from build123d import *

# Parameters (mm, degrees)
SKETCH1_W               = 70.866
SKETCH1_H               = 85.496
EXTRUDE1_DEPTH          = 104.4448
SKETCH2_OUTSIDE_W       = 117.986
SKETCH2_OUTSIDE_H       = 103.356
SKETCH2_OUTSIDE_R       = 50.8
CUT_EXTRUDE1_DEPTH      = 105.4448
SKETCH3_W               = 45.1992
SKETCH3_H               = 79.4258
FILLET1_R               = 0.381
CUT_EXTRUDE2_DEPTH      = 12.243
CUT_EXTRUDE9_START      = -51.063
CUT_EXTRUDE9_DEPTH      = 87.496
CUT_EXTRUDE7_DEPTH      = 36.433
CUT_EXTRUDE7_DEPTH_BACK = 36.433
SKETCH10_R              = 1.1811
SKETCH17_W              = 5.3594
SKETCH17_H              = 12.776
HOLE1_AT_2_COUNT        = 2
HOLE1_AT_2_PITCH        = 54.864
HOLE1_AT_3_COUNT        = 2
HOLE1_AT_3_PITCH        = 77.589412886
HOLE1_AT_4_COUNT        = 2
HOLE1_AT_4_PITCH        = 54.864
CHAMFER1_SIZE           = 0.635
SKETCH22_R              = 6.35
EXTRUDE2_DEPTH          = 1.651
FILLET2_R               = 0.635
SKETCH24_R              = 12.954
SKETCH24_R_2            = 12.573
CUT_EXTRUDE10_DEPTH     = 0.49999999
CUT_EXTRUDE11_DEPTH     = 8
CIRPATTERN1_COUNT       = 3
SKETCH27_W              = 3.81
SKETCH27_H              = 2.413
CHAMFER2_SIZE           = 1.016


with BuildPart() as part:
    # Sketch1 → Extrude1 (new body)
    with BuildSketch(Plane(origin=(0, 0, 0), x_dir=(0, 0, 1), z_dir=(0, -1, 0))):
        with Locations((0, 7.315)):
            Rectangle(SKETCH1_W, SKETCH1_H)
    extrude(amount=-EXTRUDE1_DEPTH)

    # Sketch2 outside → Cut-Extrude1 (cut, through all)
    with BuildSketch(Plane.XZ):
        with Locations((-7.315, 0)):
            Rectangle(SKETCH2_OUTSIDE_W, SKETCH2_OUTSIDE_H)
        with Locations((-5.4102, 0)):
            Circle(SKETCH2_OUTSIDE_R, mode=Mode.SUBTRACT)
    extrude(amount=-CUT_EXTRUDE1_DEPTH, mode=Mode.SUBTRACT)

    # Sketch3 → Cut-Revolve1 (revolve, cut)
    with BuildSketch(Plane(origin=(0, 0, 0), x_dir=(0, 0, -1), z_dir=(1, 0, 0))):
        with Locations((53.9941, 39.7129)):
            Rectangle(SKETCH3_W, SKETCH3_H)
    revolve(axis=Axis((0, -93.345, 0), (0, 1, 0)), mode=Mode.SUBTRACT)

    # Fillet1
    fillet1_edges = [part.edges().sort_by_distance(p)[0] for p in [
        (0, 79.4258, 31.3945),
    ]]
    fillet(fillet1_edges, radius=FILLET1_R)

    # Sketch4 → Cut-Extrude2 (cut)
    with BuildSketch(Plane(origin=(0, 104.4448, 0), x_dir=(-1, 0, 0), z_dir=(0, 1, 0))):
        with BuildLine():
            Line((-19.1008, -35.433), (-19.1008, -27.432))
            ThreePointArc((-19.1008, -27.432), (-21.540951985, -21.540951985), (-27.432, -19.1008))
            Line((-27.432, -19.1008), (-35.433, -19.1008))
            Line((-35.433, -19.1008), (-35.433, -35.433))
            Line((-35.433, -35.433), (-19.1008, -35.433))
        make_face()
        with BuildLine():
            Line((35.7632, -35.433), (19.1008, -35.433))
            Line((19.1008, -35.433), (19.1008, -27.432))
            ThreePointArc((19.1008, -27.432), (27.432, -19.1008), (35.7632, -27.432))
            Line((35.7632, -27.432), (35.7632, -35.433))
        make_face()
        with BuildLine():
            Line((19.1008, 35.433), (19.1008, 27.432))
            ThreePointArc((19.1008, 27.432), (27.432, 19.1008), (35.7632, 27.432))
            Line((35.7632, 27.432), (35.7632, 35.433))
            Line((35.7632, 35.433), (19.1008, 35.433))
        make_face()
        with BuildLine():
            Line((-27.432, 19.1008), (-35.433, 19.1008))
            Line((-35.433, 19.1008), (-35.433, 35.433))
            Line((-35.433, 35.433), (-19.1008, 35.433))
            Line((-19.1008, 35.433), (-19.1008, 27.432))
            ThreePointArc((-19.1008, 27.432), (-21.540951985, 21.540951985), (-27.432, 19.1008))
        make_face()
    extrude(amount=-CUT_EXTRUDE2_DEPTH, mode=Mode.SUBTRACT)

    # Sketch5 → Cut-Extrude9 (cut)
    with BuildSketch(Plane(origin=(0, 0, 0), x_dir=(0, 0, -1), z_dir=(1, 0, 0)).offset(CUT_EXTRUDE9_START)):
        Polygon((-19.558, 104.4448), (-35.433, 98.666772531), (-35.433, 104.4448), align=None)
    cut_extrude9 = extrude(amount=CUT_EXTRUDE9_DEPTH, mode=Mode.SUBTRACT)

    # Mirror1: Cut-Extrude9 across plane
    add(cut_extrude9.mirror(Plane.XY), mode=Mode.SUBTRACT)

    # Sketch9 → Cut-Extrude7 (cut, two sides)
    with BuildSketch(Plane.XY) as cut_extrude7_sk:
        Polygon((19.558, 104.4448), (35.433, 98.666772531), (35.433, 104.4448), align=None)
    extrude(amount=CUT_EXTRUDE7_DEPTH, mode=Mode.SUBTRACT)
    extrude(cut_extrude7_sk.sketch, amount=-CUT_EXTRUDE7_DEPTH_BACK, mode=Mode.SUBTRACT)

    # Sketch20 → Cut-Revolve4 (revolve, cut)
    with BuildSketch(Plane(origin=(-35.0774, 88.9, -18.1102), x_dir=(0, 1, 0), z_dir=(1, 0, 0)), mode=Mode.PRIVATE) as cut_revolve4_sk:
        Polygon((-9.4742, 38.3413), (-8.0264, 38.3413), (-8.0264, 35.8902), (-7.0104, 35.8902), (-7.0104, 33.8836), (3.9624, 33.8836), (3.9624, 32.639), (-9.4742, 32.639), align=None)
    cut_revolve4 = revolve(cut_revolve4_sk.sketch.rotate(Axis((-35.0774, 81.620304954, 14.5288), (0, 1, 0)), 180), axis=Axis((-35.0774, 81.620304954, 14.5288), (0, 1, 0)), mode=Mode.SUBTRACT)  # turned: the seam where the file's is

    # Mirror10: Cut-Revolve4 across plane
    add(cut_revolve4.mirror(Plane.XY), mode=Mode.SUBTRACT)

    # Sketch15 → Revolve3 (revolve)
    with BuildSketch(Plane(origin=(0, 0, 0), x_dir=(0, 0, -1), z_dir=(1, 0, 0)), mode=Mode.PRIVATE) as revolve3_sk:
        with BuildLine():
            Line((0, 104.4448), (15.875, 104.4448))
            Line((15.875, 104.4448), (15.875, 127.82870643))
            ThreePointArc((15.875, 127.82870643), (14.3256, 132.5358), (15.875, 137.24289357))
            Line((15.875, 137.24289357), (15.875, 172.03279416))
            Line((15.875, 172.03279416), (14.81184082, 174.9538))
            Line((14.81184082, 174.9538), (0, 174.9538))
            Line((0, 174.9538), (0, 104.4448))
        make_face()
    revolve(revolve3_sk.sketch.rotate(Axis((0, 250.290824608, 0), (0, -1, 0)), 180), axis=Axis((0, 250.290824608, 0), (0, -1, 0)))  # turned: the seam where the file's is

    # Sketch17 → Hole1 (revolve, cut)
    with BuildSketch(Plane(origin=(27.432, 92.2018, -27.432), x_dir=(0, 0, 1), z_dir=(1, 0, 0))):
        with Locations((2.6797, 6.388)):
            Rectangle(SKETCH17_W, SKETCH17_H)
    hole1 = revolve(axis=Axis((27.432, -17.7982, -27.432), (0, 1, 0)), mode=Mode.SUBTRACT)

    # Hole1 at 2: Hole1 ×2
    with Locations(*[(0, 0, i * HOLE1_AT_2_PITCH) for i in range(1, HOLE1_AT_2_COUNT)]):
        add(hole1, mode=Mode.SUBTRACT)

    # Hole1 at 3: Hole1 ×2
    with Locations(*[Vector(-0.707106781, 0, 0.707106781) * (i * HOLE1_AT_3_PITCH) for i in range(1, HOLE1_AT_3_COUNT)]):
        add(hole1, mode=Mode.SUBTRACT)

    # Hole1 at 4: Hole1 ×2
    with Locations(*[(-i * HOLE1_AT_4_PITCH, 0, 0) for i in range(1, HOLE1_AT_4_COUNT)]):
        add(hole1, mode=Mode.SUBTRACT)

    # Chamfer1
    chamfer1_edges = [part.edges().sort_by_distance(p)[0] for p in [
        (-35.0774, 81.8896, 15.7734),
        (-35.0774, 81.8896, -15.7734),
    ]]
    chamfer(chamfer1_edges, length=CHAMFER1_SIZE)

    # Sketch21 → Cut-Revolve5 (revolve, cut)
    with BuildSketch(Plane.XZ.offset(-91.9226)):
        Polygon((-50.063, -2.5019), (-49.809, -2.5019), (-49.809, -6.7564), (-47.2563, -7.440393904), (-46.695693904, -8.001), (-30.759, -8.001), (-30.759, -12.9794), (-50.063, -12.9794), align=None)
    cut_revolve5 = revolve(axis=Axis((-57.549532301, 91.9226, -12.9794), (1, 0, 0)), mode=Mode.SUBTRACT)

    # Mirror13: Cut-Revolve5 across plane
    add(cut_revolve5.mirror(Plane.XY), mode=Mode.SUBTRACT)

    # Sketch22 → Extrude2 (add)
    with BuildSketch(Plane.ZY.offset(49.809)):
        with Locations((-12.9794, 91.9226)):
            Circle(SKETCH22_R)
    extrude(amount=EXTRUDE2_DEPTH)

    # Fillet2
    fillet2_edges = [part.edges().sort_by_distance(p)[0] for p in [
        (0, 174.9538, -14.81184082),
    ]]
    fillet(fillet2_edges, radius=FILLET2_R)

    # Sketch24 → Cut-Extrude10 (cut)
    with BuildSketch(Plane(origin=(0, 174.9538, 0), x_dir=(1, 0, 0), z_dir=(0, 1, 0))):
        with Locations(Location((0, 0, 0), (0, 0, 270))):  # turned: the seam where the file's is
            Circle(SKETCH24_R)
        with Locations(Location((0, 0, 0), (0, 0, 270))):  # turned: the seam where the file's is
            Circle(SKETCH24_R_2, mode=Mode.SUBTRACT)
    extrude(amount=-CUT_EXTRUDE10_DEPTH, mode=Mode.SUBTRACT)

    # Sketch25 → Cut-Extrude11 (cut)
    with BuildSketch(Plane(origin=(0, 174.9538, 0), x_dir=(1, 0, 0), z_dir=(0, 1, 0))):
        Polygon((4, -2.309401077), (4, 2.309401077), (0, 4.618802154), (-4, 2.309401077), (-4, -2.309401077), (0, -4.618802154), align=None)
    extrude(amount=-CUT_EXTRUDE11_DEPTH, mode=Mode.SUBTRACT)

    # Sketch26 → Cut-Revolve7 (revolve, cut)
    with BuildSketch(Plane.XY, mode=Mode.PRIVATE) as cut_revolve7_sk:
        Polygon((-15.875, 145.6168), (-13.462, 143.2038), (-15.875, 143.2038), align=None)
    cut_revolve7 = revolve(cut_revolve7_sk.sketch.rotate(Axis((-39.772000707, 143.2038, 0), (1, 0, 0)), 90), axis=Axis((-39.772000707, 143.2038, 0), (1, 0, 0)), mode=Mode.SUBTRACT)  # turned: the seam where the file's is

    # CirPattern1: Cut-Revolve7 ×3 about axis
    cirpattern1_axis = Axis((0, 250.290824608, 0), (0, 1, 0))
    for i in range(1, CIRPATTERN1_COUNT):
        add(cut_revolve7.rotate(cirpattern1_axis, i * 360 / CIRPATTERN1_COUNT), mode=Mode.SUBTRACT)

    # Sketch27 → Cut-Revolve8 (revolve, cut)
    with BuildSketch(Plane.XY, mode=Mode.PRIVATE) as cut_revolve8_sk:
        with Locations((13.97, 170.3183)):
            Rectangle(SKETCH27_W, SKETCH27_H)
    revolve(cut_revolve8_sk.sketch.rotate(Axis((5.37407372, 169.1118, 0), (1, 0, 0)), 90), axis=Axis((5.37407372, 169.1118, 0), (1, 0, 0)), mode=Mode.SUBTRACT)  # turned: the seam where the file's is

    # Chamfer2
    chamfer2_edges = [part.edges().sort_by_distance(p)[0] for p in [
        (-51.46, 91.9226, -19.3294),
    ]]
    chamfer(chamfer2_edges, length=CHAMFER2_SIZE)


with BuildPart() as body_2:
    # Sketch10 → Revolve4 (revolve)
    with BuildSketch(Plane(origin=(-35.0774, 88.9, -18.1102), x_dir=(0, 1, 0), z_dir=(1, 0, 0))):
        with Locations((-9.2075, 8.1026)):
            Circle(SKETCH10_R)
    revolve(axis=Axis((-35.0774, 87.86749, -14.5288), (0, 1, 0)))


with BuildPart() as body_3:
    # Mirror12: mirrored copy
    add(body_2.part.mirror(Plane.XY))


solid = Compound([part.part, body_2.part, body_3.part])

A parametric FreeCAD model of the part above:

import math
import FreeCAD as App
import Part
import Sketcher

V = App.Vector
Q = App.Units.Quantity


def edges_at(feature, points):
    """Names of the edges that pass closest to the given points."""
    edges = feature.Shape.Edges
    near = lambda p: min(range(len(edges)), key=lambda i: edges[i].distToShape(Part.Vertex(*p))[0])
    return sorted({f"Edge{near(p) + 1}" for p in points})

doc = App.newDocument("Part")
body = doc.addObject("PartDesign::Body", "Body")

# Sketch on XZ plane
sketch1 = body.newObject("Sketcher::SketchObject", "Sketch")
sketch1.AttachmentSupport = (doc.getObject("XZ_Plane"), [""])
sketch1.MapMode = "FlatFace"
sketch1.addGeometry(Part.LineSegment(V(-50, -35, 0), V(35, -35, 0)), False)
sketch1.addGeometry(Part.LineSegment(V(35, -35, 0), V(35, 35, 0)), False)
sketch1.addGeometry(Part.LineSegment(V(35, 35, 0), V(-50, 35, 0)), False)
sketch1.addGeometry(Part.LineSegment(V(-50, 35, 0), V(-50, -35, 0)), False)
sketch1.addConstraint(Sketcher.Constraint("Coincident", 0, 2, 1, 1))
sketch1.addConstraint(Sketcher.Constraint("Coincident", 1, 2, 2, 1))
sketch1.addConstraint(Sketcher.Constraint("Coincident", 2, 2, 3, 1))
sketch1.addConstraint(Sketcher.Constraint("Coincident", 3, 2, 0, 1))
sketch1.addConstraint(Sketcher.Constraint("Horizontal", 0))
sketch1.addConstraint(Sketcher.Constraint("Vertical", 1))
sketch1.addConstraint(Sketcher.Constraint("Horizontal", 2))
sketch1.addConstraint(Sketcher.Constraint("Vertical", 3))
sketch1.addConstraint(Sketcher.Constraint("DistanceY", 1, 1, 1, 2, Q("2.79 in")))
sketch1.addConstraint(Sketcher.Constraint("DistanceX", -1, 1, 0, 2, Q("1.395 in")))
sketch1.addConstraint(Sketcher.Constraint("DistanceY", 0, 2, -1, 1, Q("1.395 in")))
sketch1.addConstraint(Sketcher.Constraint("DistanceX", 0, 1, 0, 2, Q("85.496 mm")))
pad1 = body.newObject("PartDesign::Pad", "Pad")
pad1.Profile = sketch1
pad1.Length = Q("4.112 in")
pad1.Reversed = True

# Sketch on XZ plane
sketch2 = body.newObject("Sketcher::SketchObject", "Sketch001")
sketch2.AttachmentSupport = (doc.getObject("XZ_Plane"), [""])
sketch2.MapMode = "FlatFace"
sketch2.addGeometry(Part.LineSegment(V(-66, 52, 0), V(-66, -52, 0)), False)
sketch2.addGeometry(Part.LineSegment(V(-66, -52, 0), V(52, -52, 0)), False)
sketch2.addGeometry(Part.LineSegment(V(52, -52, 0), V(52, 52, 0)), False)
sketch2.addGeometry(Part.LineSegment(V(52, 52, 0), V(-66, 52, 0)), False)
sketch2.addGeometry(Part.Circle(V(-5, 0, 0), V(0, 0, 1), 51), False)
sketch2.addConstraint(Sketcher.Constraint("Coincident", 0, 2, 1, 1))
sketch2.addConstraint(Sketcher.Constraint("Coincident", 1, 2, 2, 1))
sketch2.addConstraint(Sketcher.Constraint("Coincident", 2, 2, 3, 1))
sketch2.addConstraint(Sketcher.Constraint("Coincident", 3, 2, 0, 1))
sketch2.addConstraint(Sketcher.Constraint("Vertical", 0))
sketch2.addConstraint(Sketcher.Constraint("Horizontal", 1))
sketch2.addConstraint(Sketcher.Constraint("Vertical", 2))
sketch2.addConstraint(Sketcher.Constraint("Horizontal", 3))
sketch2.addConstraint(Sketcher.Constraint("PointOnObject", 4, 3, -1))
sketch2.addConstraint(Sketcher.Constraint("Diameter", 4, Q("4 in")))
sketch2.addConstraint(Sketcher.Constraint("DistanceX", 4, 3, -1, 1, Q("0.213 in")))
sketch2.addConstraint(Sketcher.Constraint("DistanceX", 1, 1, 1, 2, Q("117.986 mm")))
sketch2.addConstraint(Sketcher.Constraint("DistanceY", 0, 2, 0, 1, Q("103.356 mm")))
sketch2.addConstraint(Sketcher.Constraint("DistanceX", 0, 2, -1, 1, Q("66.308 mm")))
sketch2.addConstraint(Sketcher.Constraint("DistanceY", 0, 2, -1, 1, Q("51.678 mm")))
pocket1 = body.newObject("PartDesign::Pocket", "Pocket")
pocket1.Profile = sketch2
pocket1.Type = "ThroughAll"

# Sketch on YZ plane
sketch3 = body.newObject("Sketcher::SketchObject", "Sketch002")
sketch3.AttachmentSupport = (doc.getObject("YZ_Plane"), [""])
sketch3.MapMode = "FlatFace"
sketch3.addGeometry(Part.LineSegment(V(79, -31, 0), V(0, -31, 0)), False)
sketch3.addGeometry(Part.LineSegment(V(0, -31, 0), V(0, -77, 0)), False)
sketch3.addGeometry(Part.LineSegment(V(0, -77, 0), V(79, -77, 0)), False)
sketch3.addGeometry(Part.LineSegment(V(79, -77, 0), V(79, -31, 0)), False)
sketch3.addConstraint(Sketcher.Constraint("Coincident", 0, 2, 1, 1))
sketch3.addConstraint(Sketcher.Constraint("Coincident", 1, 2, 2, 1))
sketch3.addConstraint(Sketcher.Constraint("Coincident", 2, 2, 3, 1))
sketch3.addConstraint(Sketcher.Constraint("Coincident", 3, 2, 0, 1))
sketch3.addConstraint(Sketcher.Constraint("Horizontal", 0))
sketch3.addConstraint(Sketcher.Constraint("Vertical", 1))
sketch3.addConstraint(Sketcher.Constraint("Horizontal", 2))
sketch3.addConstraint(Sketcher.Constraint("Vertical", 3))
sketch3.addConstraint(Sketcher.Constraint("PointOnObject", 0, 2, -2))
sketch3.addConstraint(Sketcher.Constraint("DistanceX", 0, 2, 0, 1, Q("3.127 in")))
sketch3.addConstraint(Sketcher.Constraint("DistanceY", 1, 2, 1, 1, Q("45.1992 mm")))
sketch3.addConstraint(Sketcher.Constraint("DistanceY", 1, 2, -1, 1, Q("3.0155 in")))
groove = body.newObject("PartDesign::Groove", "Groove")
groove.Profile = sketch3
groove.ReferenceAxis = (sketch3, ["H_Axis"])
groove.Angle = 360
doc.recompute()

fillet = body.newObject("PartDesign::Fillet", "Fillet")
fillet.Base = (groove, edges_at(groove, [(0, 79.426, 31.395)]))
fillet.Radius = Q("0.015 in")

# Sketch on XZ plane
sketch4 = body.newObject("Sketcher::SketchObject", "Sketch003")
sketch4.AttachmentSupport = (doc.getObject("XZ_Plane"), [""])
sketch4.MapMode = "FlatFace"
sketch4.AttachmentOffset = App.Placement(V(0, 0, -4.112 * 25.4), App.Rotation())
sketch4.addGeometry(Part.LineSegment(V(19, -35, 0), V(19, -27, 0)), False)
sketch4.addGeometry(Part.ArcOfCircle(Part.Circle(V(27, -27, 0), V(0, 0, 1), 8), math.radians(90), math.radians(180)), False)
sketch4.addGeometry(Part.LineSegment(V(27, -19, 0), V(35, -19, 0)), False)
sketch4.addGeometry(Part.LineSegment(V(35, -19, 0), V(35, -35, 0)), False)
sketch4.addGeometry(Part.LineSegment(V(35, -35, 0), V(19, -35, 0)), False)
sketch4.addGeometry(Part.LineSegment(V(-19, -35, 0), V(-36, -35, 0)), False)
sketch4.addGeometry(Part.LineSegment(V(-36, -35, 0), V(-36, -27, 0)), False)
sketch4.addGeometry(Part.ArcOfCircle(Part.Circle(V(-27, -27, 0), V(0, 0, 1), 8), math.radians(0), math.radians(180)), False)
sketch4.addGeometry(Part.LineSegment(V(-19, -27, 0), V(-19, -35, 0)), False)
sketch4.addGeometry(Part.LineSegment(V(-19, 35, 0), V(-19, 27, 0)), False)
sketch4.addGeometry(Part.ArcOfCircle(Part.Circle(V(-27, 27, 0), V(0, 0, 1), 8), math.radians(180), math.radians(360)), False)
sketch4.addGeometry(Part.LineSegment(V(-36, 27, 0), V(-36, 35, 0)), False)
sketch4.addGeometry(Part.LineSegment(V(-36, 35, 0), V(-19, 35, 0)), False)
sketch4.addGeometry(Part.LineSegment(V(35, 19, 0), V(27, 19, 0)), False)
sketch4.addGeometry(Part.ArcOfCircle(Part.Circle(V(27, 27, 0), V(0, 0, 1), 8), math.radians(-180), math.radians(-90)), False)
sketch4.addGeometry(Part.LineSegment(V(19, 27, 0), V(19, 35, 0)), False)
sketch4.addGeometry(Part.LineSegment(V(19, 35, 0), V(35, 35, 0)), False)
sketch4.addGeometry(Part.LineSegment(V(35, 35, 0), V(35, 19, 0)), False)
sketch4.addConstraint(Sketcher.Constraint("Tangent", 0, 2, 1, 2))
sketch4.addConstraint(Sketcher.Constraint("Tangent", 1, 1, 2, 1))
sketch4.addConstraint(Sketcher.Constraint("Coincident", 2, 2, 3, 1))
sketch4.addConstraint(Sketcher.Constraint("Coincident", 3, 2, 4, 1))
sketch4.addConstraint(Sketcher.Constraint("Coincident", 4, 2, 0, 1))
sketch4.addConstraint(Sketcher.Constraint("Coincident", 5, 2, 6, 1))
sketch4.addConstraint(Sketcher.Constraint("Tangent", 6, 2, 7, 2))
sketch4.addConstraint(Sketcher.Constraint("Tangent", 7, 1, 8, 1))
sketch4.addConstraint(Sketcher.Constraint("Coincident", 8, 2, 5, 1))
sketch4.addConstraint(Sketcher.Constraint("Tangent", 9, 2, 10, 2))
sketch4.addConstraint(Sketcher.Constraint("Tangent", 10, 1, 11, 1))
sketch4.addConstraint(Sketcher.Constraint("Coincident", 11, 2, 12, 1))
sketch4.addConstraint(Sketcher.Constraint("Coincident", 12, 2, 9, 1))
sketch4.addConstraint(Sketcher.Constraint("Tangent", 13, 2, 14, 2))
sketch4.addConstraint(Sketcher.Constraint("Tangent", 14, 1, 15, 1))
sketch4.addConstraint(Sketcher.Constraint("Coincident", 15, 2, 16, 1))
sketch4.addConstraint(Sketcher.Constraint("Coincident", 16, 2, 17, 1))
sketch4.addConstraint(Sketcher.Constraint("Coincident", 17, 2, 13, 1))
sketch4.addConstraint(Sketcher.Constraint("Vertical", 0))
sketch4.addConstraint(Sketcher.Constraint("Horizontal", 2))
sketch4.addConstraint(Sketcher.Constraint("Vertical", 3))
sketch4.addConstraint(Sketcher.Constraint("Horizontal", 4))
sketch4.addConstraint(Sketcher.Constraint("Horizontal", 5))
sketch4.addConstraint(Sketcher.Constraint("Vertical", 6))
sketch4.addConstraint(Sketcher.Constraint("Vertical", 8))
sketch4.addConstraint(Sketcher.Constraint("Vertical", 9))
sketch4.addConstraint(Sketcher.Constraint("Vertical", 11))
sketch4.addConstraint(Sketcher.Constraint("Horizontal", 12))
sketch4.addConstraint(Sketcher.Constraint("Horizontal", 13))
sketch4.addConstraint(Sketcher.Constraint("Vertical", 15))
sketch4.addConstraint(Sketcher.Constraint("Horizontal", 16))
sketch4.addConstraint(Sketcher.Constraint("Vertical", 17))
sketch4.addConstraint(Sketcher.Constraint("Equal", 1, 7))
sketch4.addConstraint(Sketcher.Constraint("Equal", 7, 10))
sketch4.addConstraint(Sketcher.Constraint("Equal", 10, 14))
sketch4.addConstraint(Sketcher.Constraint("Symmetric", 1, 3, 10, 3, -1, 1))
sketch4.addConstraint(Sketcher.Constraint("Symmetric", 7, 3, 14, 3, -1, 1))
sketch4.addConstraint(Sketcher.Constraint("Symmetric", 1, 3, 7, 3, -2))
sketch4.addConstraint(Sketcher.Constraint("Symmetric", 3, 2, 16, 2, -1))
sketch4.addConstraint(Sketcher.Constraint("Horizontal", 4, 2, 5, 2))
sketch4.addConstraint(Sketcher.Constraint("Horizontal", 12, 2, 15, 2))
sketch4.addConstraint(Sketcher.Constraint("Equal", 13, 0))
sketch4.addConstraint(Sketcher.Constraint("Radius", 1, Q("0.328 in")))
sketch4.addConstraint(Sketcher.Constraint("DistanceX", 2, 1, 2, 2, Q("0.315 in")))
sketch4.addConstraint(Sketcher.Constraint("DistanceX", -1, 1, 1, 3, Q("1.08 in")))
sketch4.addConstraint(Sketcher.Constraint("DistanceY", 1, 3, -1, 1, Q("1.08 in")))
pocket2 = body.newObject("PartDesign::Pocket", "Pocket001")
pocket2.Profile = sketch4
pocket2.Length = 12.243
pocket2.Reversed = True

# Sketch on YZ plane
sketch5 = body.newObject("Sketcher::SketchObject", "Sketch004")
sketch5.AttachmentSupport = (doc.getObject("YZ_Plane"), [""])
sketch5.MapMode = "FlatFace"
sketch5.AttachmentOffset = App.Placement(V(0, 0, -51.063), App.Rotation())
sketch5.addGeometry(Part.LineSegment(V(99, 35, 0), V(104, 20, 0)), False)
sketch5.addGeometry(Part.LineSegment(V(104, 20, 0), V(104, 35, 0)), False)
sketch5.addGeometry(Part.LineSegment(V(104, 35, 0), V(99, 35, 0)), False)
sketch5.addConstraint(Sketcher.Constraint("Coincident", 0, 2, 1, 1))
sketch5.addConstraint(Sketcher.Constraint("Coincident", 1, 2, 2, 1))
sketch5.addConstraint(Sketcher.Constraint("Coincident", 2, 2, 0, 1))
sketch5.addConstraint(Sketcher.Constraint("Vertical", 1))
sketch5.addConstraint(Sketcher.Constraint("Horizontal", 2))
sketch5.addConstraint(Sketcher.Constraint("Angle", 0, Q("-70 deg")))
sketch5.addConstraint(Sketcher.Constraint("DistanceY", 1, 1, 1, 2, Q("0.625 in")))
sketch5.addConstraint(Sketcher.Constraint("DistanceY", -1, 1, 0, 2, Q("0.77 in")))
sketch5.addConstraint(Sketcher.Constraint("DistanceX", -1, 1, 0, 2, Q("4.112 in")))
pocket3 = body.newObject("PartDesign::Pocket", "Pocket002")
pocket3.Profile = sketch5
pocket3.Length = 87.496
pocket3.Reversed = True
doc.recompute()

mirrored = body.newObject("PartDesign::Mirrored", "Mirrored")
mirrored.Originals = [pocket3]
mirrored.MirrorPlane = (doc.getObject("XY_Plane"), [""])
body.Tip = mirrored

# Sketch on XY plane
sketch6 = body.newObject("Sketcher::SketchObject", "Sketch005")
sketch6.AttachmentSupport = (doc.getObject("XY_Plane"), [""])
sketch6.MapMode = "FlatFace"
sketch6.addGeometry(Part.LineSegment(V(20, 104, 0), V(35, 99, 0)), False)
sketch6.addGeometry(Part.LineSegment(V(35, 99, 0), V(35, 104, 0)), False)
sketch6.addGeometry(Part.LineSegment(V(35, 104, 0), V(20, 104, 0)), False)
sketch6.addConstraint(Sketcher.Constraint("Coincident", 0, 2, 1, 1))
sketch6.addConstraint(Sketcher.Constraint("Coincident", 1, 2, 2, 1))
sketch6.addConstraint(Sketcher.Constraint("Coincident", 2, 2, 0, 1))
sketch6.addConstraint(Sketcher.Constraint("Vertical", 1))
sketch6.addConstraint(Sketcher.Constraint("Horizontal", 2))
sketch6.addConstraint(Sketcher.Constraint("Angle", 0, Q("-20 deg")))
sketch6.addConstraint(Sketcher.Constraint("DistanceX", 2, 2, 2, 1, Q("0.625 in")))
sketch6.addConstraint(Sketcher.Constraint("DistanceX", -1, 1, 2, 2, Q("0.77 in")))
sketch6.addConstraint(Sketcher.Constraint("DistanceY", -1, 1, 1, 2, Q("4.112 in")))
pocket4 = body.newObject("PartDesign::Pocket", "Pocket003")
pocket4.Profile = sketch6
pocket4.Type = "ThroughAll"
pocket4.Midplane = True

# Sketch on YZ plane
sketch7 = body.newObject("Sketcher::SketchObject", "Sketch006")
sketch7.AttachmentSupport = (doc.getObject("YZ_Plane"), [""])
sketch7.MapMode = "FlatFace"
sketch7.AttachmentOffset = App.Placement(V(0, 0, -1.381 * 25.4), App.Rotation())
sketch7.addGeometry(Part.LineSegment(V(80.9, 20.2, 0), V(79.4, 20.2, 0)), False)
sketch7.addGeometry(Part.LineSegment(V(79.4, 20.2, 0), V(79.4, 14.5, 0)), False)
sketch7.addGeometry(Part.LineSegment(V(79.4, 14.5, 0), V(92.9, 14.5, 0)), False)
sketch7.addGeometry(Part.LineSegment(V(92.9, 14.5, 0), V(92.9, 15.8, 0)), False)
sketch7.addGeometry(Part.LineSegment(V(92.9, 15.8, 0), V(81.9, 15.8, 0)), False)
sketch7.addGeometry(Part.LineSegment(V(81.9, 15.8, 0), V(81.9, 17.8, 0)), False)
sketch7.addGeometry(Part.LineSegment(V(81.9, 17.8, 0), V(80.9, 17.8, 0)), False)
sketch7.addGeometry(Part.LineSegment(V(80.9, 17.8, 0), V(80.9, 20.2, 0)), False)
sketch7.addGeometry(Part.LineSegment(V(79.4, 14.5, 0), V(92.9, 14.5, 0)), True)  # axis
sketch7.addConstraint(Sketcher.Constraint("Coincident", 0, 2, 1, 1))
sketch7.addConstraint(Sketcher.Constraint("Coincident", 1, 2, 2, 1))
sketch7.addConstraint(Sketcher.Constraint("Coincident", 2, 2, 3, 1))
sketch7.addConstraint(Sketcher.Constraint("Coincident", 3, 2, 4, 1))
sketch7.addConstraint(Sketcher.Constraint("Coincident", 4, 2, 5, 1))
sketch7.addConstraint(Sketcher.Constraint("Coincident", 5, 2, 6, 1))
sketch7.addConstraint(Sketcher.Constraint("Coincident", 6, 2, 7, 1))
sketch7.addConstraint(Sketcher.Constraint("Coincident", 7, 2, 0, 1))
sketch7.addConstraint(Sketcher.Constraint("Horizontal", 0))
sketch7.addConstraint(Sketcher.Constraint("Vertical", 1))
sketch7.addConstraint(Sketcher.Constraint("Horizontal", 2))
sketch7.addConstraint(Sketcher.Constraint("Vertical", 3))
sketch7.addConstraint(Sketcher.Constraint("Horizontal", 4))
sketch7.addConstraint(Sketcher.Constraint("Vertical", 5))
sketch7.addConstraint(Sketcher.Constraint("Horizontal", 6))
sketch7.addConstraint(Sketcher.Constraint("Vertical", 7))
sketch7.addConstraint(Sketcher.Constraint("Horizontal", 8))
sketch7.addConstraint(Sketcher.Constraint("Coincident", 8, 1, 1, 2))
sketch7.addConstraint(Sketcher.Constraint("Vertical", 3, 2, 8, 2))
sketch7.addConstraint(Sketcher.Constraint("DistanceX", 6, 2, 6, 1, Q("0.04 in")))
sketch7.addConstraint(Sketcher.Constraint("DistanceY", -1, 1, 5, 2, Q("0.7 in")))
sketch7.addConstraint(Sketcher.Constraint("DistanceX", 0, 2, 0, 1, Q("0.057 in")))
sketch7.addConstraint(Sketcher.Constraint("DistanceX", 2, 1, 2, 2, Q("0.529 in")))
sketch7.addConstraint(Sketcher.Constraint("DistanceY", 3, 1, 3, 2, Q("0.049 in")))
sketch7.addConstraint(Sketcher.Constraint("DistanceY", 5, 1, 5, 2, Q("0.079 in")))
sketch7.addConstraint(Sketcher.Constraint("DistanceY", 1, 2, 1, 1, Q("0.2245 in")))
sketch7.addConstraint(Sketcher.Constraint("DistanceX", -1, 1, 0, 2, Q("3.127 in")))
groove2 = body.newObject("PartDesign::Groove", "Groove001")
groove2.Profile = sketch7
groove2.ReferenceAxis = (sketch7, ["Axis0"])
groove2.Angle = 360
doc.recompute()

mirrored2 = body.newObject("PartDesign::Mirrored", "Mirrored001")
mirrored2.Originals = [groove2]
mirrored2.MirrorPlane = (doc.getObject("XY_Plane"), [""])
body.Tip = mirrored2

# Sketch on YZ plane
sketch8 = body.newObject("Sketcher::SketchObject", "Sketch007")
sketch8.AttachmentSupport = (doc.getObject("YZ_Plane"), [""])
sketch8.MapMode = "FlatFace"
sketch8.addGeometry(Part.LineSegment(V(104.4, 0, 0), V(104.4, -15.9, 0)), False)
sketch8.addGeometry(Part.LineSegment(V(104.4, -15.9, 0), V(127.8, -15.9, 0)), False)
sketch8.addGeometry(Part.ArcOfCircle(Part.Circle(V(132.5, -22.3, 0), V(0, 0, 1), 7.9), math.radians(54), math.radians(126)), False)
sketch8.addGeometry(Part.LineSegment(V(137.2, -15.9, 0), V(172, -15.9, 0)), False)
sketch8.addGeometry(Part.LineSegment(V(172, -15.9, 0), V(175, -14.8, 0)), False)
sketch8.addGeometry(Part.LineSegment(V(175, -14.8, 0), V(175, 0, 0)), False)
sketch8.addGeometry(Part.LineSegment(V(175, 0, 0), V(104.4, 0, 0)), False)
sketch8.addConstraint(Sketcher.Constraint("Coincident", 0, 2, 1, 1))
sketch8.addConstraint(Sketcher.Constraint("Coincident", 1, 2, 2, 2))
sketch8.addConstraint(Sketcher.Constraint("Coincident", 2, 1, 3, 1))
sketch8.addConstraint(Sketcher.Constraint("Coincident", 3, 2, 4, 1))
sketch8.addConstraint(Sketcher.Constraint("Coincident", 4, 2, 5, 1))
sketch8.addConstraint(Sketcher.Constraint("Coincident", 5, 2, 6, 1))
sketch8.addConstraint(Sketcher.Constraint("Coincident", 6, 2, 0, 1))
sketch8.addConstraint(Sketcher.Constraint("Vertical", 0))
sketch8.addConstraint(Sketcher.Constraint("Horizontal", 1))
sketch8.addConstraint(Sketcher.Constraint("Horizontal", 3))
sketch8.addConstraint(Sketcher.Constraint("Vertical", 5))
sketch8.addConstraint(Sketcher.Constraint("Horizontal", 6))
sketch8.addConstraint(Sketcher.Constraint("PointOnObject", 5, 2, -1))
sketch8.addConstraint(Sketcher.Constraint("Horizontal", 1, 2, 2, 1))
sketch8.addConstraint(Sketcher.Constraint("Angle", 4, Q("20 deg")))
sketch8.addConstraint(Sketcher.Constraint("Radius", 2, Q("0.312 in")))
sketch8.addConstraint(Sketcher.Constraint("DistanceY", 0, 2, 0, 1, Q("0.625 in")))
sketch8.addConstraint(Sketcher.Constraint("DistanceX", 2, 3, 4, 2, Q("1.67 in")))
sketch8.addConstraint(Sketcher.Constraint("DistanceY", 2, 3, -1, 1, Q("0.876 in")))
sketch8.addConstraint(Sketcher.Constraint("DistanceX", -1, 1, 0, 2, Q("4.112 in")))
sketch8.addConstraint(Sketcher.Constraint("DistanceX", 3, 1, 3, 2, Q("34.789901 mm")))
sketch8.addConstraint(Sketcher.Constraint("DistanceX", 6, 2, 6, 1, Q("70.509 mm")))
revolution = body.newObject("PartDesign::Revolution", "Revolution")
revolution.Profile = sketch8
revolution.ReferenceAxis = (sketch8, ["H_Axis"])
revolution.Angle = 360

# Sketch on YZ plane
sketch9 = body.newObject("Sketcher::SketchObject", "Sketch008")
sketch9.AttachmentSupport = (doc.getObject("YZ_Plane"), [""])
sketch9.MapMode = "FlatFace"
sketch9.AttachmentOffset = App.Placement(V(0, 0, 1.08 * 25.4), App.Rotation())
sketch9.addGeometry(Part.LineSegment(V(79, -27, 0), V(92, -27, 0)), False)
sketch9.addGeometry(Part.LineSegment(V(92, -27, 0), V(92, -22, 0)), False)
sketch9.addGeometry(Part.LineSegment(V(92, -22, 0), V(79, -22, 0)), False)
sketch9.addGeometry(Part.LineSegment(V(79, -22, 0), V(79, -27, 0)), False)
sketch9.addGeometry(Part.LineSegment(V(79, -27, 0), V(92, -27, 0)), True)  # axis
sketch9.addConstraint(Sketcher.Constraint("Coincident", 0, 2, 1, 1))
sketch9.addConstraint(Sketcher.Constraint("Coincident", 1, 2, 2, 1))
sketch9.addConstraint(Sketcher.Constraint("Coincident", 2, 2, 3, 1))
sketch9.addConstraint(Sketcher.Constraint("Coincident", 3, 2, 0, 1))
sketch9.addConstraint(Sketcher.Constraint("Horizontal", 0))
sketch9.addConstraint(Sketcher.Constraint("Vertical", 1))
sketch9.addConstraint(Sketcher.Constraint("Horizontal", 2))
sketch9.addConstraint(Sketcher.Constraint("Vertical", 3))
sketch9.addConstraint(Sketcher.Constraint("Horizontal", 4))
sketch9.addConstraint(Sketcher.Constraint("Coincident", 4, 1, 3, 2))
sketch9.addConstraint(Sketcher.Constraint("Vertical", 1, 2, 4, 2))
sketch9.addConstraint(Sketcher.Constraint("DistanceY", 1, 1, 1, 2, Q("0.211 in")))
sketch9.addConstraint(Sketcher.Constraint("DistanceY", 0, 2, -1, 1, Q("1.08 in")))
sketch9.addConstraint(Sketcher.Constraint("DistanceX", -1, 1, 2, 2, Q("3.127 in")))
sketch9.addConstraint(Sketcher.Constraint("DistanceX", 0, 1, 0, 2, Q("12.776 mm")))
groove3 = body.newObject("PartDesign::Groove", "Groove002")
groove3.Profile = sketch9
groove3.ReferenceAxis = (sketch9, ["Axis0"])
groove3.Angle = 360
doc.recompute()

linearpattern = body.newObject("PartDesign::LinearPattern", "LinearPattern")
linearpattern.Originals = [groove3]
linearpattern.Direction = (doc.getObject("Z_Axis"), [""])
linearpattern.Mode = "offset"
linearpattern.Offset = Q("2.16 in")
linearpattern.Occurrences = 2
body.Tip = linearpattern
doc.recompute()

datumline = body.newObject("PartDesign::Line", "DatumLine")
datumline.Placement = App.Placement(V(0, 0, 0), App.Rotation(V(0, 0, 1), V(-0.707106781, 0, 0.707106781)))
linearpattern2 = body.newObject("PartDesign::LinearPattern", "LinearPattern001")
linearpattern2.Originals = [groove3]
linearpattern2.Direction = (datumline, [""])
linearpattern2.Mode = "offset"
linearpattern2.Offset = 77.589413
linearpattern2.Occurrences = 2
body.Tip = linearpattern2
doc.recompute()

linearpattern3 = body.newObject("PartDesign::LinearPattern", "LinearPattern002")
linearpattern3.Originals = [groove3]
linearpattern3.Direction = (doc.getObject("X_Axis"), [""])
linearpattern3.Mode = "offset"
linearpattern3.Offset = Q("2.16 in")
linearpattern3.Occurrences = 2
linearpattern3.Reversed = True
body.Tip = linearpattern3
doc.recompute()

chamfer = body.newObject("PartDesign::Chamfer", "Chamfer")
chamfer.Base = (linearpattern3, edges_at(linearpattern3, [(-35.077, 81.89, 15.773), (-35.077, 81.89, -15.773)]))
chamfer.Size = Q("0.025 in")

# Sketch on XZ plane
sketch10 = body.newObject("Sketcher::SketchObject", "Sketch009")
sketch10.AttachmentSupport = (doc.getObject("XZ_Plane"), [""])
sketch10.MapMode = "FlatFace"
sketch10.AttachmentOffset = App.Placement(V(0, 0, -3.619 * 25.4), App.Rotation())
sketch10.addGeometry(Part.LineSegment(V(-49.81, -2.5, 0), V(-50.06, -2.5, 0)), False)
sketch10.addGeometry(Part.LineSegment(V(-50.06, -2.5, 0), V(-50.06, -12.98, 0)), False)
sketch10.addGeometry(Part.LineSegment(V(-50.06, -12.98, 0), V(-30.76, -12.98, 0)), False)
sketch10.addGeometry(Part.LineSegment(V(-30.76, -12.98, 0), V(-30.76, -8, 0)), False)
sketch10.addGeometry(Part.LineSegment(V(-30.76, -8, 0), V(-46.7, -8, 0)), False)
sketch10.addGeometry(Part.LineSegment(V(-46.7, -8, 0), V(-47.26, -7.44, 0)), False)
sketch10.addGeometry(Part.LineSegment(V(-47.26, -7.44, 0), V(-49.81, -6.76, 0)), False)
sketch10.addGeometry(Part.LineSegment(V(-49.81, -6.76, 0), V(-49.81, -2.5, 0)), False)
sketch10.addGeometry(Part.LineSegment(V(-50.06, -12.98, 0), V(-30.76, -12.98, 0)), True)  # axis
sketch10.addConstraint(Sketcher.Constraint("Coincident", 0, 2, 1, 1))
sketch10.addConstraint(Sketcher.Constraint("Coincident", 1, 2, 2, 1))
sketch10.addConstraint(Sketcher.Constraint("Coincident", 2, 2, 3, 1))
sketch10.addConstraint(Sketcher.Constraint("Coincident", 3, 2, 4, 1))
sketch10.addConstraint(Sketcher.Constraint("Coincident", 4, 2, 5, 1))
sketch10.addConstraint(Sketcher.Constraint("Coincident", 5, 2, 6, 1))
sketch10.addConstraint(Sketcher.Constraint("Coincident", 6, 2, 7, 1))
sketch10.addConstraint(Sketcher.Constraint("Coincident", 7, 2, 0, 1))
sketch10.addConstraint(Sketcher.Constraint("Horizontal", 0))
sketch10.addConstraint(Sketcher.Constraint("Vertical", 1))
sketch10.addConstraint(Sketcher.Constraint("Horizontal", 2))
sketch10.addConstraint(Sketcher.Constraint("Vertical", 3))
sketch10.addConstraint(Sketcher.Constraint("Horizontal", 4))
sketch10.addConstraint(Sketcher.Constraint("Vertical", 7))
sketch10.addConstraint(Sketcher.Constraint("Horizontal", 8))
sketch10.addConstraint(Sketcher.Constraint("Coincident", 8, 1, 1, 2))
sketch10.addConstraint(Sketcher.Constraint("Vertical", 3, 2, 8, 2))
sketch10.addConstraint(Sketcher.Constraint("Angle", 5, Q("135 deg")))
sketch10.addConstraint(Sketcher.Constraint("Angle", 6, Q("165 deg")))
sketch10.addConstraint(Sketcher.Constraint("DistanceX", 0, 2, 0, 1, Q("0.01 in")))
sketch10.addConstraint(Sketcher.Constraint("DistanceX", 2, 1, 2, 2, Q("0.76 in")))
sketch10.addConstraint(Sketcher.Constraint("DistanceY", 3, 1, 3, 2, Q("0.196 in")))
sketch10.addConstraint(Sketcher.Constraint("DistanceY", 1, 2, 1, 1, Q("0.4125 in")))
sketch10.addConstraint(Sketcher.Constraint("DistanceY", 7, 1, 7, 2, Q("0.1675 in")))
sketch10.addConstraint(Sketcher.Constraint("DistanceY", 1, 2, -1, 1, Q("0.511 in")))
sketch10.addConstraint(Sketcher.Constraint("DistanceX", 0, 2, 5, 2, Q("0.1105 in")))
sketch10.addConstraint(Sketcher.Constraint("DistanceX", 0, 2, -1, 1, Q("50.063 mm")))
groove4 = body.newObject("PartDesign::Groove", "Groove003")
groove4.Profile = sketch10
groove4.ReferenceAxis = (sketch10, ["Axis0"])
groove4.Angle = 360
doc.recompute()

mirrored3 = body.newObject("PartDesign::Mirrored", "Mirrored002")
mirrored3.Originals = [groove4]
mirrored3.MirrorPlane = (doc.getObject("XY_Plane"), [""])
body.Tip = mirrored3

# Sketch on YZ plane
sketch11 = body.newObject("Sketcher::SketchObject", "Sketch010")
sketch11.AttachmentSupport = (doc.getObject("YZ_Plane"), [""])
sketch11.MapMode = "FlatFace"
sketch11.AttachmentOffset = App.Placement(V(0, 0, -49.809), App.Rotation())
sketch11.addGeometry(Part.Circle(V(92, -13, 0), V(0, 0, 1), 6), False)
sketch11.addConstraint(Sketcher.Constraint("Diameter", 0, Q("0.5 in")))
sketch11.addConstraint(Sketcher.Constraint("DistanceX", -1, 1, 0, 3, Q("3.619 in")))
sketch11.addConstraint(Sketcher.Constraint("DistanceY", 0, 3, -1, 1, Q("0.511 in")))
pad2 = body.newObject("PartDesign::Pad", "Pad001")
pad2.Profile = sketch11
pad2.Length = Q("0.065 in")
pad2.Reversed = True
doc.recompute()

fillet2 = body.newObject("PartDesign::Fillet", "Fillet001")
fillet2.Base = (pad2, edges_at(pad2, [(0, 174.954, -14.812)]))
fillet2.Radius = Q("0.025 in")

# Sketch on XZ plane
sketch12 = body.newObject("Sketcher::SketchObject", "Sketch011")
sketch12.AttachmentSupport = (doc.getObject("XZ_Plane"), [""])
sketch12.MapMode = "FlatFace"
sketch12.AttachmentOffset = App.Placement(V(0, 0, -174.9538), App.Rotation())
sketch12.addGeometry(Part.Circle(V(0, 0, 0), V(0, 0, 1), 13), False)
sketch12.addGeometry(Part.Circle(V(0, 0, 0), V(0, 0, 1), 13), False)
sketch12.addConstraint(Sketcher.Constraint("Coincident", 0, 3, -1, 1))
sketch12.addConstraint(Sketcher.Constraint("Coincident", 1, 3, -1, 1))
sketch12.addConstraint(Sketcher.Constraint("Diameter", 0, Q("1.02 in")))
sketch12.addConstraint(Sketcher.Constraint("Diameter", 1, Q("0.99 in")))
pocket5 = body.newObject("PartDesign::Pocket", "Pocket004")
pocket5.Profile = sketch12
pocket5.Length = 0.5
pocket5.Reversed = True

# Sketch on XZ plane
sketch13 = body.newObject("Sketcher::SketchObject", "Sketch012")
sketch13.AttachmentSupport = (doc.getObject("XZ_Plane"), [""])
sketch13.MapMode = "FlatFace"
sketch13.AttachmentOffset = App.Placement(V(0, 0, -174.9538), App.Rotation())
sketch13.addGeometry(Part.LineSegment(V(4, 2.3, 0), V(4, -2.3, 0)), False)
sketch13.addGeometry(Part.LineSegment(V(4, -2.3, 0), V(0, -4.6, 0)), False)
sketch13.addGeometry(Part.LineSegment(V(0, -4.6, 0), V(-4, -2.3, 0)), False)
sketch13.addGeometry(Part.LineSegment(V(-4, -2.3, 0), V(-4, 2.3, 0)), False)
sketch13.addGeometry(Part.LineSegment(V(-4, 2.3, 0), V(0, 4.6, 0)), False)
sketch13.addGeometry(Part.LineSegment(V(0, 4.6, 0), V(4, 2.3, 0)), False)
sketch13.addConstraint(Sketcher.Constraint("Coincident", 0, 2, 1, 1))
sketch13.addConstraint(Sketcher.Constraint("Coincident", 1, 2, 2, 1))
sketch13.addConstraint(Sketcher.Constraint("Coincident", 2, 2, 3, 1))
sketch13.addConstraint(Sketcher.Constraint("Coincident", 3, 2, 4, 1))
sketch13.addConstraint(Sketcher.Constraint("Coincident", 4, 2, 5, 1))
sketch13.addConstraint(Sketcher.Constraint("Coincident", 5, 2, 0, 1))
sketch13.addConstraint(Sketcher.Constraint("Vertical", 0))
sketch13.addConstraint(Sketcher.Constraint("Vertical", 3))
sketch13.addConstraint(Sketcher.Constraint("Symmetric", 0, 2, 3, 2, -1, 1))
sketch13.addConstraint(Sketcher.Constraint("Symmetric", 1, 2, 4, 2, -1, 1))
sketch13.addConstraint(Sketcher.Constraint("PointOnObject", 1, 2, -2))
sketch13.addConstraint(Sketcher.Constraint("Parallel", 2, 5))
sketch13.addConstraint(Sketcher.Constraint("Horizontal", 0, 2, 2, 2))
sketch13.addConstraint(Sketcher.Constraint("Angle", 1, Q("-150 deg")))
sketch13.addConstraint(Sketcher.Constraint("DistanceX", -1, 1, 0, 2, Q("4 mm")))
sketch13.addConstraint(Sketcher.Constraint("DistanceY", 0, 2, -1, 1, Q("2.309401 mm")))
pocket6 = body.newObject("PartDesign::Pocket", "Pocket005")
pocket6.Profile = sketch13
pocket6.Length = 8
pocket6.Reversed = True

# Sketch on XY plane
sketch14 = body.newObject("Sketcher::SketchObject", "Sketch013")
sketch14.AttachmentSupport = (doc.getObject("XY_Plane"), [""])
sketch14.MapMode = "FlatFace"
sketch14.addGeometry(Part.LineSegment(V(-13.5, 143.2, 0), V(-15.9, 145.6, 0)), False)
sketch14.addGeometry(Part.LineSegment(V(-15.9, 145.6, 0), V(-15.9, 143.2, 0)), False)
sketch14.addGeometry(Part.LineSegment(V(-15.9, 143.2, 0), V(-13.5, 143.2, 0)), False)
sketch14.addGeometry(Part.LineSegment(V(-15.9, 143.2, 0), V(-13.5, 143.2, 0)), True)  # axis
sketch14.addConstraint(Sketcher.Constraint("Coincident", 0, 2, 1, 1))
sketch14.addConstraint(Sketcher.Constraint("Coincident", 1, 2, 2, 1))
sketch14.addConstraint(Sketcher.Constraint("Coincident", 2, 2, 0, 1))
sketch14.addConstraint(Sketcher.Constraint("Vertical", 1))
sketch14.addConstraint(Sketcher.Constraint("Horizontal", 2))
sketch14.addConstraint(Sketcher.Constraint("Horizontal", 3))
sketch14.addConstraint(Sketcher.Constraint("Coincident", 3, 1, 1, 2))
sketch14.addConstraint(Sketcher.Constraint("Equal", 2, 3))
sketch14.addConstraint(Sketcher.Constraint("Equal", 3, 1))
sketch14.addConstraint(Sketcher.Constraint("DistanceX", 2, 1, 2, 2, Q("0.095 in")))
sketch14.addConstraint(Sketcher.Constraint("DistanceX", 2, 2, -1, 1, Q("0.53 in")))
sketch14.addConstraint(Sketcher.Constraint("DistanceY", -1, 1, 0, 2, Q("145.6168 mm")))
groove5 = body.newObject("PartDesign::Groove", "Groove004")
groove5.Profile = sketch14
groove5.ReferenceAxis = (sketch14, ["Axis0"])
groove5.Angle = 360
doc.recompute()

polarpattern = body.newObject("PartDesign::PolarPattern", "PolarPattern")
polarpattern.Originals = [groove5]
polarpattern.Axis = (doc.getObject("Y_Axis"), [""])
polarpattern.Angle = 360
polarpattern.Occurrences = 3
body.Tip = polarpattern

# Sketch on XY plane
sketch15 = body.newObject("Sketcher::SketchObject", "Sketch014")
sketch15.AttachmentSupport = (doc.getObject("XY_Plane"), [""])
sketch15.MapMode = "FlatFace"
sketch15.addGeometry(Part.LineSegment(V(12.1, 171.5, 0), V(12.1, 169.1, 0)), False)
sketch15.addGeometry(Part.LineSegment(V(12.1, 169.1, 0), V(15.9, 169.1, 0)), False)
sketch15.addGeometry(Part.LineSegment(V(15.9, 169.1, 0), V(15.9, 171.5, 0)), False)
sketch15.addGeometry(Part.LineSegment(V(15.9, 171.5, 0), V(12.1, 171.5, 0)), False)
sketch15.addGeometry(Part.LineSegment(V(12.1, 169.1, 0), V(15.9, 169.1, 0)), True)  # axis
sketch15.addConstraint(Sketcher.Constraint("Coincident", 0, 2, 1, 1))
sketch15.addConstraint(Sketcher.Constraint("Coincident", 1, 2, 2, 1))
sketch15.addConstraint(Sketcher.Constraint("Coincident", 2, 2, 3, 1))
sketch15.addConstraint(Sketcher.Constraint("Coincident", 3, 2, 0, 1))
sketch15.addConstraint(Sketcher.Constraint("Vertical", 0))
sketch15.addConstraint(Sketcher.Constraint("Horizontal", 1))
sketch15.addConstraint(Sketcher.Constraint("Vertical", 2))
sketch15.addConstraint(Sketcher.Constraint("Horizontal", 3))
sketch15.addConstraint(Sketcher.Constraint("Horizontal", 4))
sketch15.addConstraint(Sketcher.Constraint("Coincident", 4, 1, 0, 2))
sketch15.addConstraint(Sketcher.Constraint("Vertical", 2, 2, 4, 2))
sketch15.addConstraint(Sketcher.Constraint("DistanceX", 1, 1, 1, 2, Q("0.15 in")))
sketch15.addConstraint(Sketcher.Constraint("DistanceY", 0, 2, 0, 1, Q("0.095 in")))
sketch15.addConstraint(Sketcher.Constraint("DistanceX", -1, 1, 0, 2, Q("0.475 in")))
sketch15.addConstraint(Sketcher.Constraint("DistanceY", -1, 1, 0, 2, Q("169.1118 mm")))
groove6 = body.newObject("PartDesign::Groove", "Groove005")
groove6.Profile = sketch15
groove6.ReferenceAxis = (sketch15, ["Axis0"])
groove6.Angle = 360
doc.recompute()

chamfer2 = body.newObject("PartDesign::Chamfer", "Chamfer001")
chamfer2.Base = (groove6, edges_at(groove6, [(-51.46, 91.923, -19.329)]))
chamfer2.Size = Q("0.04 in")
body2 = doc.addObject("PartDesign::Body", "Body001")

# Sketch on YZ plane
sketch16 = body2.newObject("Sketcher::SketchObject", "Sketch015")
sketch16.AttachmentSupport = (doc.getObject("YZ_Plane001"), [""])
sketch16.MapMode = "FlatFace"
sketch16.AttachmentOffset = App.Placement(V(0, 0, -1.381 * 25.4), App.Rotation())
sketch16.addGeometry(Part.Circle(V(79.7, -10, 0), V(0, 0, 1), 1.2), False)
sketch16.addGeometry(Part.LineSegment(V(79.7, -14.5, 0), V(89.7, -14.5, 0)), True)  # axis
sketch16.addConstraint(Sketcher.Constraint("Horizontal", 1))
sketch16.addConstraint(Sketcher.Constraint("Vertical", 0, 3, 1, 1))
sketch16.addConstraint(Sketcher.Constraint("Diameter", 0, Q("0.093 in")))
sketch16.addConstraint(Sketcher.Constraint("DistanceY", 0, 3, -1, 1, Q("0.394 in")))
sketch16.addConstraint(Sketcher.Constraint("DistanceY", 1, 1, -1, 1, Q("0.572 in")))
sketch16.addConstraint(Sketcher.Constraint("DistanceX", 1, 1, 1, 2, Q("10 mm")))
sketch16.addConstraint(Sketcher.Constraint("DistanceX", -1, 1, 0, 3, Q("3.1375 in")))
revolution2 = body2.newObject("PartDesign::Revolution", "Revolution001")
revolution2.Profile = sketch16
revolution2.ReferenceAxis = (sketch16, ["Axis0"])
revolution2.Angle = 360
body3 = doc.addObject("PartDesign::Body", "Body002")
doc.recompute()

mirroring = doc.addObject("Part::Mirroring", "Mirroring")
mirroring.Source = body2
mirroring.Base = V(0, 0, 0)
mirroring.Normal = V(0, 0, 1)
body3.BaseFeature = mirroring
doc.recompute()
mirroring.Visibility = False

doc.recompute()
